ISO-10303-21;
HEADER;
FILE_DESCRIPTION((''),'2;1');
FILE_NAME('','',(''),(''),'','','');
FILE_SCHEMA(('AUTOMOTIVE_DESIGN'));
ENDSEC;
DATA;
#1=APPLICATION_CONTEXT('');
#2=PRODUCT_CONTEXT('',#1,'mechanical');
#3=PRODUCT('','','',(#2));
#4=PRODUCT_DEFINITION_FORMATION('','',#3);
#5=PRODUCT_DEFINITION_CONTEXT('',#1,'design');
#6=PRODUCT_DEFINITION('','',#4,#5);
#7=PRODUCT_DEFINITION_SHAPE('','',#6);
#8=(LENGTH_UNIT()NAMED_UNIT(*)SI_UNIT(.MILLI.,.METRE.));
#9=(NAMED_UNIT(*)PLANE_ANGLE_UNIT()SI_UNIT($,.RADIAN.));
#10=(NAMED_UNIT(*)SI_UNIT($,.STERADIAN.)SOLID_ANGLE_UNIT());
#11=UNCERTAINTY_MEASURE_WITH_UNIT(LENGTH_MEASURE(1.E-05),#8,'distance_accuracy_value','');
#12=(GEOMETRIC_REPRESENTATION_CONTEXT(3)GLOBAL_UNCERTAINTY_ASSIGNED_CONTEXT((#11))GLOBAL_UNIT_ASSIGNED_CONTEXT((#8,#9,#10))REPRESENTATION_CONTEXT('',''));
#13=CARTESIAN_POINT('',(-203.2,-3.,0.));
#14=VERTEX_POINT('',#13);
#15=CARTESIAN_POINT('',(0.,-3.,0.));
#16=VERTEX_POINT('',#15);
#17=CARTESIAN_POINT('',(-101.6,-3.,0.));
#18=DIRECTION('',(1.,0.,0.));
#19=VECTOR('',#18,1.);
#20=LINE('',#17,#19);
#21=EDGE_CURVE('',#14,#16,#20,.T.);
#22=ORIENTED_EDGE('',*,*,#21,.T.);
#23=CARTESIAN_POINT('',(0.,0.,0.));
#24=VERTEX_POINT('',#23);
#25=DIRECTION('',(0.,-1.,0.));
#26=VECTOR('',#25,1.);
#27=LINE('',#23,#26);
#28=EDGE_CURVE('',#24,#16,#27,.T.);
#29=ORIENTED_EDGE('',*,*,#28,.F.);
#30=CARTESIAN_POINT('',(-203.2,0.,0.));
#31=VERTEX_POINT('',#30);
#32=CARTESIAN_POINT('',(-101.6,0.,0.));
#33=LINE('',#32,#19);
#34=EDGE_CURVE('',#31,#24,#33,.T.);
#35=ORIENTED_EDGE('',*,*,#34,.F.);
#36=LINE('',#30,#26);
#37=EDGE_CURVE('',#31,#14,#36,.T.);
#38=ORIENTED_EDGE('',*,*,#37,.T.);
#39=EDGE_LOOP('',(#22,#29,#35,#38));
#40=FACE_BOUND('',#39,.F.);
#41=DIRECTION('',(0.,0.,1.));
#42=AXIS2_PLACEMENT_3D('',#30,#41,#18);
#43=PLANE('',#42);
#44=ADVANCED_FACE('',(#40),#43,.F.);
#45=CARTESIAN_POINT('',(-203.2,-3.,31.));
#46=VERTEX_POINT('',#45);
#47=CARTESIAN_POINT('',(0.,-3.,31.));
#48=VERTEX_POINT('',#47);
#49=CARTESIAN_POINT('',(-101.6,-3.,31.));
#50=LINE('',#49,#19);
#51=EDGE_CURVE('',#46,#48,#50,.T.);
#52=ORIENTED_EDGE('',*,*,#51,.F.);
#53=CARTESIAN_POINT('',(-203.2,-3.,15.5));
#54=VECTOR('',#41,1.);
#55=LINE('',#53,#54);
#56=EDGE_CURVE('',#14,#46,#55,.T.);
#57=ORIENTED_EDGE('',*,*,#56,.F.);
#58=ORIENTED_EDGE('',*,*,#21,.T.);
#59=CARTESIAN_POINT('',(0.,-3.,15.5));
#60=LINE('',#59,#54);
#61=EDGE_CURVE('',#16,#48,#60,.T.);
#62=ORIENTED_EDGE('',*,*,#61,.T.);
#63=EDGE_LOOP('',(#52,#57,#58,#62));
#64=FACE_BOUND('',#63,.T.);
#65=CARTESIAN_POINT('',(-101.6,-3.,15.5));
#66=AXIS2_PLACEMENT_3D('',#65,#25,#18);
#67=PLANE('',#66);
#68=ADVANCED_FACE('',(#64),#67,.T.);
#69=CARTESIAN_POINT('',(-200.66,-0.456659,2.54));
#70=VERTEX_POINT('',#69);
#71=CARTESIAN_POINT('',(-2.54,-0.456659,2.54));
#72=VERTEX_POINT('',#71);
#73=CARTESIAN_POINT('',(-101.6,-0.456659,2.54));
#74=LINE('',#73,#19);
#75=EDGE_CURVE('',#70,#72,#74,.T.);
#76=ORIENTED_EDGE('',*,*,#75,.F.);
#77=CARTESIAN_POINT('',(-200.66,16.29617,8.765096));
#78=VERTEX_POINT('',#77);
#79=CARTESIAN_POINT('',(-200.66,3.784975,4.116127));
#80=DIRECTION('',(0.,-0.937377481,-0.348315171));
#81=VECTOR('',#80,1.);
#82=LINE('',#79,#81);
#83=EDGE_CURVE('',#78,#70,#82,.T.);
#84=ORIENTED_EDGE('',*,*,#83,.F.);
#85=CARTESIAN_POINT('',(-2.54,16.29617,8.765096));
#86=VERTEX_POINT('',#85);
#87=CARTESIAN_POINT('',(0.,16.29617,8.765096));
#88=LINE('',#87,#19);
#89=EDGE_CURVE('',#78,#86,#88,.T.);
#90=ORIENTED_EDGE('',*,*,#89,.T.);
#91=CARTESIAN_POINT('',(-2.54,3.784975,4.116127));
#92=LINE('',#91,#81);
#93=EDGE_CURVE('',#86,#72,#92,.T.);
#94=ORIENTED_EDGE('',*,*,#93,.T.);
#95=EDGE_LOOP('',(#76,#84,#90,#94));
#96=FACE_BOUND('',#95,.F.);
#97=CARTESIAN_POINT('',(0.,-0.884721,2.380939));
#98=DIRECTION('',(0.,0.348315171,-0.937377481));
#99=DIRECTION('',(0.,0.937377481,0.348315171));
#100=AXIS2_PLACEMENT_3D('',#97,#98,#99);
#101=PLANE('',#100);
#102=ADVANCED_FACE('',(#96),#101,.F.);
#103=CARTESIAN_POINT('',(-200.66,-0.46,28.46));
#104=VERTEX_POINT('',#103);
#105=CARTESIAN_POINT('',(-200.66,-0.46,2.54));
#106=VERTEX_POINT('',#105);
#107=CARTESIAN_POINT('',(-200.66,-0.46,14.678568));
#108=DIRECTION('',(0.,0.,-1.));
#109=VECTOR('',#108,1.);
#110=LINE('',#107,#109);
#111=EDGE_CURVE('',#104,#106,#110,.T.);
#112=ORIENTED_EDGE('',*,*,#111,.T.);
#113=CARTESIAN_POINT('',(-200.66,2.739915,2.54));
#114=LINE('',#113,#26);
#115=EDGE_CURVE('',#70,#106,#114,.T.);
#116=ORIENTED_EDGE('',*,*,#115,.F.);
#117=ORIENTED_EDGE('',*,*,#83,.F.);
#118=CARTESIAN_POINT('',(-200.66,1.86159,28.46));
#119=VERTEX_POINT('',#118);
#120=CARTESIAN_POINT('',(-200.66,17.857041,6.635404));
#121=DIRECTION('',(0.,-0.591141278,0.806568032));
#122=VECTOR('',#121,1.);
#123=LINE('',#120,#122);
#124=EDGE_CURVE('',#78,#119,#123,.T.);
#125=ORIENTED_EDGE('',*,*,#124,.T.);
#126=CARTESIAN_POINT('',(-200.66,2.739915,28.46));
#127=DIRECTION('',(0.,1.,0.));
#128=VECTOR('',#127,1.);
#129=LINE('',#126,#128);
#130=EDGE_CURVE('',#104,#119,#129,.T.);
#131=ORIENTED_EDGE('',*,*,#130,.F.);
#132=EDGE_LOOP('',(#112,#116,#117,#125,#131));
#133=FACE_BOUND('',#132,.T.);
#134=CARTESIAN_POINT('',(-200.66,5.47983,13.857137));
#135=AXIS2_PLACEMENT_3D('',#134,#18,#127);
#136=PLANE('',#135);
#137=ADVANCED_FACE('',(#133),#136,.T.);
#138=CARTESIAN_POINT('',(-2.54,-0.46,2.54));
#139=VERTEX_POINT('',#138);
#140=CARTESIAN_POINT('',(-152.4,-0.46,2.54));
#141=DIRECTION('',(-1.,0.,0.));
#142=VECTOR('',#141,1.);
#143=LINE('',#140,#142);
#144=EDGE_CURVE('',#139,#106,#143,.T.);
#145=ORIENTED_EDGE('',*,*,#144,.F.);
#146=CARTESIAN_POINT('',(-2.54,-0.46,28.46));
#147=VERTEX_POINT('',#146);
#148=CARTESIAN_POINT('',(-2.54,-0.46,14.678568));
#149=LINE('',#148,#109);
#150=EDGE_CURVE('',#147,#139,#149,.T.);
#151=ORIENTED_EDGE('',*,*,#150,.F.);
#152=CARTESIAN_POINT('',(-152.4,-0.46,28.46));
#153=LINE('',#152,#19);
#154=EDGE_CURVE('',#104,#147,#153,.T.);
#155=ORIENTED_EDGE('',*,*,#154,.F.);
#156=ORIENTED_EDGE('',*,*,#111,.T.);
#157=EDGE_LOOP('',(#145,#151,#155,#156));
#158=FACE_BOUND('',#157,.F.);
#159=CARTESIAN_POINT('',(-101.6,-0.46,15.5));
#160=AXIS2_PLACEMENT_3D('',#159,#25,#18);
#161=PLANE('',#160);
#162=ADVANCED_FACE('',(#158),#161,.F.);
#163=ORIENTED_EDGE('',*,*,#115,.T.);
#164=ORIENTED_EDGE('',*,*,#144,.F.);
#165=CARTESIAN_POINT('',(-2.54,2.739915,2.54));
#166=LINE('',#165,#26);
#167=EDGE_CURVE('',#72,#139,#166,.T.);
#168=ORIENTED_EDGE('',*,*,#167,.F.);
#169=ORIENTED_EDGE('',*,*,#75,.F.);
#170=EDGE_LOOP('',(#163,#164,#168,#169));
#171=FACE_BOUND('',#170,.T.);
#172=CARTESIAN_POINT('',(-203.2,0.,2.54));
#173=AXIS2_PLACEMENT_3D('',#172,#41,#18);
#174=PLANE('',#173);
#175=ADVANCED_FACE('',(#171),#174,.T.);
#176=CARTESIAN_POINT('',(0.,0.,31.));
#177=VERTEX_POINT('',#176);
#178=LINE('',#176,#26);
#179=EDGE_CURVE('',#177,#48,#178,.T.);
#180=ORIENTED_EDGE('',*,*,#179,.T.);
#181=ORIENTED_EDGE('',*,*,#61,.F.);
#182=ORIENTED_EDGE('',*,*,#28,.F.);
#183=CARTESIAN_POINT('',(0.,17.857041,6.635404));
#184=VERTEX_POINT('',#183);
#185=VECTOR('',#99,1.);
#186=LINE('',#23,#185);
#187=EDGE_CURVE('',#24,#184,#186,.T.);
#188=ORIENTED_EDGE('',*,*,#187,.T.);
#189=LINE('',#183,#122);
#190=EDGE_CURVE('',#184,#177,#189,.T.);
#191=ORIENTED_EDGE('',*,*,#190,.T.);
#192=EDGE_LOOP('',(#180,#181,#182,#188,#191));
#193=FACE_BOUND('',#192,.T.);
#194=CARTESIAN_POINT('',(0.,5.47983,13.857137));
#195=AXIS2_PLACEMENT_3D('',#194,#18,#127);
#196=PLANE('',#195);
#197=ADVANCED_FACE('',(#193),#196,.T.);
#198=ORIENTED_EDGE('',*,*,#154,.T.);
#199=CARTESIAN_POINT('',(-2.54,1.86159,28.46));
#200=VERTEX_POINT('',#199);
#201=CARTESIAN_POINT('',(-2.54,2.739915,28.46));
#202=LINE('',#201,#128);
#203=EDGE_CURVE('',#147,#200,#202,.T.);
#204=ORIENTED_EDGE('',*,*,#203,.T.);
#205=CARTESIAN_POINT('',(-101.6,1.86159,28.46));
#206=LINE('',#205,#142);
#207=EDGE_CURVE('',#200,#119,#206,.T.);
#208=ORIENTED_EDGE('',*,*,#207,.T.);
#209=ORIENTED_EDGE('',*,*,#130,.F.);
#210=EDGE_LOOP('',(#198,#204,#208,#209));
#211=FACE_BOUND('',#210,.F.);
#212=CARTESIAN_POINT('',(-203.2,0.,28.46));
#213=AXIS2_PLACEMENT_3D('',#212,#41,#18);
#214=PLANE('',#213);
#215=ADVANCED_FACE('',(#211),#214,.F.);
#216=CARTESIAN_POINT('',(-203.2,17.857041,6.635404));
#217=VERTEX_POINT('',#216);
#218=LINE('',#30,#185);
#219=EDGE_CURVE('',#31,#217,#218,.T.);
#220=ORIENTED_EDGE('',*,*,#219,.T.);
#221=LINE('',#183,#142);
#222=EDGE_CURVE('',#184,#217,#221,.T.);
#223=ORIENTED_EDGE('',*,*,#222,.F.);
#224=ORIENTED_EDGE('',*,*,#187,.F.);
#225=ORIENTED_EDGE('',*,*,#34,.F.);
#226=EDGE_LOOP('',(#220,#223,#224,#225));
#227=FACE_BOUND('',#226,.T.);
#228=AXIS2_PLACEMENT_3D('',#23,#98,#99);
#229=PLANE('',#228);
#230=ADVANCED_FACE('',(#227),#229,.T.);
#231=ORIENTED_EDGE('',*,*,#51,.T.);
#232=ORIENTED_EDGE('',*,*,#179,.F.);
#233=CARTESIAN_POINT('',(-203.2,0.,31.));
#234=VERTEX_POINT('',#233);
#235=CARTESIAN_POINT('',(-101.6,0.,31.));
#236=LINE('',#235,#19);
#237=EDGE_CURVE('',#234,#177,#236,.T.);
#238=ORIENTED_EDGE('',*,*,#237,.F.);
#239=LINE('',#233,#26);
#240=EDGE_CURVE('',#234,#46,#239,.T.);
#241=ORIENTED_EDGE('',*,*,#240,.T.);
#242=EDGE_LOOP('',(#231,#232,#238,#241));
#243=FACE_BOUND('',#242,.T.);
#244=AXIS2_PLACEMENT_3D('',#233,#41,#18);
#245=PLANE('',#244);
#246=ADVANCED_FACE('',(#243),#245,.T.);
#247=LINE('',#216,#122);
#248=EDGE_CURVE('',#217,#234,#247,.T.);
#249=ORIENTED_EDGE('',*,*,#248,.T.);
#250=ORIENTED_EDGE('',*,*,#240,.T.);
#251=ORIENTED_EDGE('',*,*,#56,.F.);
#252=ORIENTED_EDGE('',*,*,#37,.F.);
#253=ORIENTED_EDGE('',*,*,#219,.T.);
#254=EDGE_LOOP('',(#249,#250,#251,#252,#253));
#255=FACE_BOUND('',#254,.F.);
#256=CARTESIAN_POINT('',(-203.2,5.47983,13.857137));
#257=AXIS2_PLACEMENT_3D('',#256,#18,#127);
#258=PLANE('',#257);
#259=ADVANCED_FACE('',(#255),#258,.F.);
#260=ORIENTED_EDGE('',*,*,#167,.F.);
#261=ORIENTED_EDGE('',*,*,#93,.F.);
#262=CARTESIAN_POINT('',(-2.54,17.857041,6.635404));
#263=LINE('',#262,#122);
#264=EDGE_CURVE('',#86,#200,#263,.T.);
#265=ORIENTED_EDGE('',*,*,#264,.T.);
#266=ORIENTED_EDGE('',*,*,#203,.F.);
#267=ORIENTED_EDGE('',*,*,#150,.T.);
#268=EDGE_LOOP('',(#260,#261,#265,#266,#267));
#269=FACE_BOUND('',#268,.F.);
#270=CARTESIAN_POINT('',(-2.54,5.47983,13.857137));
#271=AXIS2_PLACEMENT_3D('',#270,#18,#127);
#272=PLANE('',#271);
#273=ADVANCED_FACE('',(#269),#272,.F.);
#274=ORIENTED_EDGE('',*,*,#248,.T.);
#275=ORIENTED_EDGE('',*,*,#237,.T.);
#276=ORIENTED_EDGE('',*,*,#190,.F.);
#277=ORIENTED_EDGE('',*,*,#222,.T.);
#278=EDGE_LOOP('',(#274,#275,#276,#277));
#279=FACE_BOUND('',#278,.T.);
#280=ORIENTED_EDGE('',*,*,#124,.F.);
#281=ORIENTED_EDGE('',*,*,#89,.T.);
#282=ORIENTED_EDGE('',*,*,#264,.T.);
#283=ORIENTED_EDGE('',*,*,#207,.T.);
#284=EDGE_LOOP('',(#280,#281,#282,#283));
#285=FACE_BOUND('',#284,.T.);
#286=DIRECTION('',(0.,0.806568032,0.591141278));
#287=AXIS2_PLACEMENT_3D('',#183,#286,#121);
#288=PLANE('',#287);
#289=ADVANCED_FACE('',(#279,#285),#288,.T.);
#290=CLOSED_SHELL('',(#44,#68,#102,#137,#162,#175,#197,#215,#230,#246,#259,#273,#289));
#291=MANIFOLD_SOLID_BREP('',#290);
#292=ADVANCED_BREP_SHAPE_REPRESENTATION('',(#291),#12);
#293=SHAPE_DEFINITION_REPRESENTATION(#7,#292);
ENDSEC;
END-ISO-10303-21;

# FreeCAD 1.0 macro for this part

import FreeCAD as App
import Part
import Sketcher
from FreeCAD import Vector
Q = App.Units.Quantity


def faces_at(feature, points):
    """Names of the faces that lie closest to the given points."""
    faces = feature.Shape.Faces
    near = lambda p: min(range(len(faces)), key=lambda i: faces[i].distToShape(Part.Vertex(*p))[0])
    return sorted({f"Face{near(p) + 1}" for p in points})


def add_polygon(sketch, points):
    """Adds a closed chain of lines whose ends are joined by coincident constraints."""
    first, n = sketch.GeometryCount, len(points)
    for a, b in zip(points, points[1:] + points[:1]):
        sketch.addGeometry(Part.LineSegment(App.Vector(*a, 0), App.Vector(*b, 0)), False)
    for i in range(n):
        sketch.addConstraint(Sketcher.Constraint("Coincident", first + i, 2, first + (i + 1) % n, 1))

doc = App.newDocument("Part")
body = doc.addObject("PartDesign::Body", "Body")

sketch1 = body.newObject("Sketcher::SketchObject", "Sketch")
sketch1.AttachmentSupport = (doc.getObject("XZ_Plane"), [""])
sketch1.MapMode = "FlatFace"
add_polygon(sketch1, [(-203, 31), (-203, 0), (0, 0), (0, 31)])
sketch1.addConstraint([
    Sketcher.Constraint("Vertical", 0),
    Sketcher.Constraint("Horizontal", 1),
    Sketcher.Constraint("Vertical", 2),
    Sketcher.Constraint("Horizontal", 3),
    Sketcher.Constraint("Coincident", 1, 2, -1, 1),
    Sketcher.Constraint("DistanceX", 1, 1, 1, 2, Q("8 in")),
    Sketcher.Constraint("DistanceY", 0, 2, 0, 1, 31.0),
])
pad1 = body.newObject("PartDesign::Pad", "Pad")
pad1.Profile = sketch1
pad1.Length = 3

sketch2 = body.newObject("Sketcher::SketchObject", "Sketch001")
sketch2.AttachmentSupport = (doc.getObject("YZ_Plane"), [""])
sketch2.MapMode = "FlatFace"
add_polygon(sketch2, [(0, 31), (0, 0), (18, 7)])
sketch2.addConstraint([
    Sketcher.Constraint("Vertical", 0),
    Sketcher.Constraint("Coincident", 0, 2, -1, 1),
    Sketcher.Constraint("Distance", 1, Q("0.75 in")),
    Sketcher.Constraint("DistanceY", 0, 2, 0, 1, 31.0),
    Sketcher.Constraint("Distance", 2, 30.207738),
])
pad2 = body.newObject("PartDesign::Pad", "Pad001")
pad2.Profile = sketch2
pad2.Length = Q("8 in")
pad2.Reversed = True
doc.recompute()

thickness = body.newObject("PartDesign::Thickness", "Thickness")
thickness.Base = (pad2, faces_at(pad2, [(-101.6, 8.929, 18.818)]))
thickness.Value = Q("0.1 in")
thickness.Reversed = True
thickness.Join = "Arc"

doc.recompute()
